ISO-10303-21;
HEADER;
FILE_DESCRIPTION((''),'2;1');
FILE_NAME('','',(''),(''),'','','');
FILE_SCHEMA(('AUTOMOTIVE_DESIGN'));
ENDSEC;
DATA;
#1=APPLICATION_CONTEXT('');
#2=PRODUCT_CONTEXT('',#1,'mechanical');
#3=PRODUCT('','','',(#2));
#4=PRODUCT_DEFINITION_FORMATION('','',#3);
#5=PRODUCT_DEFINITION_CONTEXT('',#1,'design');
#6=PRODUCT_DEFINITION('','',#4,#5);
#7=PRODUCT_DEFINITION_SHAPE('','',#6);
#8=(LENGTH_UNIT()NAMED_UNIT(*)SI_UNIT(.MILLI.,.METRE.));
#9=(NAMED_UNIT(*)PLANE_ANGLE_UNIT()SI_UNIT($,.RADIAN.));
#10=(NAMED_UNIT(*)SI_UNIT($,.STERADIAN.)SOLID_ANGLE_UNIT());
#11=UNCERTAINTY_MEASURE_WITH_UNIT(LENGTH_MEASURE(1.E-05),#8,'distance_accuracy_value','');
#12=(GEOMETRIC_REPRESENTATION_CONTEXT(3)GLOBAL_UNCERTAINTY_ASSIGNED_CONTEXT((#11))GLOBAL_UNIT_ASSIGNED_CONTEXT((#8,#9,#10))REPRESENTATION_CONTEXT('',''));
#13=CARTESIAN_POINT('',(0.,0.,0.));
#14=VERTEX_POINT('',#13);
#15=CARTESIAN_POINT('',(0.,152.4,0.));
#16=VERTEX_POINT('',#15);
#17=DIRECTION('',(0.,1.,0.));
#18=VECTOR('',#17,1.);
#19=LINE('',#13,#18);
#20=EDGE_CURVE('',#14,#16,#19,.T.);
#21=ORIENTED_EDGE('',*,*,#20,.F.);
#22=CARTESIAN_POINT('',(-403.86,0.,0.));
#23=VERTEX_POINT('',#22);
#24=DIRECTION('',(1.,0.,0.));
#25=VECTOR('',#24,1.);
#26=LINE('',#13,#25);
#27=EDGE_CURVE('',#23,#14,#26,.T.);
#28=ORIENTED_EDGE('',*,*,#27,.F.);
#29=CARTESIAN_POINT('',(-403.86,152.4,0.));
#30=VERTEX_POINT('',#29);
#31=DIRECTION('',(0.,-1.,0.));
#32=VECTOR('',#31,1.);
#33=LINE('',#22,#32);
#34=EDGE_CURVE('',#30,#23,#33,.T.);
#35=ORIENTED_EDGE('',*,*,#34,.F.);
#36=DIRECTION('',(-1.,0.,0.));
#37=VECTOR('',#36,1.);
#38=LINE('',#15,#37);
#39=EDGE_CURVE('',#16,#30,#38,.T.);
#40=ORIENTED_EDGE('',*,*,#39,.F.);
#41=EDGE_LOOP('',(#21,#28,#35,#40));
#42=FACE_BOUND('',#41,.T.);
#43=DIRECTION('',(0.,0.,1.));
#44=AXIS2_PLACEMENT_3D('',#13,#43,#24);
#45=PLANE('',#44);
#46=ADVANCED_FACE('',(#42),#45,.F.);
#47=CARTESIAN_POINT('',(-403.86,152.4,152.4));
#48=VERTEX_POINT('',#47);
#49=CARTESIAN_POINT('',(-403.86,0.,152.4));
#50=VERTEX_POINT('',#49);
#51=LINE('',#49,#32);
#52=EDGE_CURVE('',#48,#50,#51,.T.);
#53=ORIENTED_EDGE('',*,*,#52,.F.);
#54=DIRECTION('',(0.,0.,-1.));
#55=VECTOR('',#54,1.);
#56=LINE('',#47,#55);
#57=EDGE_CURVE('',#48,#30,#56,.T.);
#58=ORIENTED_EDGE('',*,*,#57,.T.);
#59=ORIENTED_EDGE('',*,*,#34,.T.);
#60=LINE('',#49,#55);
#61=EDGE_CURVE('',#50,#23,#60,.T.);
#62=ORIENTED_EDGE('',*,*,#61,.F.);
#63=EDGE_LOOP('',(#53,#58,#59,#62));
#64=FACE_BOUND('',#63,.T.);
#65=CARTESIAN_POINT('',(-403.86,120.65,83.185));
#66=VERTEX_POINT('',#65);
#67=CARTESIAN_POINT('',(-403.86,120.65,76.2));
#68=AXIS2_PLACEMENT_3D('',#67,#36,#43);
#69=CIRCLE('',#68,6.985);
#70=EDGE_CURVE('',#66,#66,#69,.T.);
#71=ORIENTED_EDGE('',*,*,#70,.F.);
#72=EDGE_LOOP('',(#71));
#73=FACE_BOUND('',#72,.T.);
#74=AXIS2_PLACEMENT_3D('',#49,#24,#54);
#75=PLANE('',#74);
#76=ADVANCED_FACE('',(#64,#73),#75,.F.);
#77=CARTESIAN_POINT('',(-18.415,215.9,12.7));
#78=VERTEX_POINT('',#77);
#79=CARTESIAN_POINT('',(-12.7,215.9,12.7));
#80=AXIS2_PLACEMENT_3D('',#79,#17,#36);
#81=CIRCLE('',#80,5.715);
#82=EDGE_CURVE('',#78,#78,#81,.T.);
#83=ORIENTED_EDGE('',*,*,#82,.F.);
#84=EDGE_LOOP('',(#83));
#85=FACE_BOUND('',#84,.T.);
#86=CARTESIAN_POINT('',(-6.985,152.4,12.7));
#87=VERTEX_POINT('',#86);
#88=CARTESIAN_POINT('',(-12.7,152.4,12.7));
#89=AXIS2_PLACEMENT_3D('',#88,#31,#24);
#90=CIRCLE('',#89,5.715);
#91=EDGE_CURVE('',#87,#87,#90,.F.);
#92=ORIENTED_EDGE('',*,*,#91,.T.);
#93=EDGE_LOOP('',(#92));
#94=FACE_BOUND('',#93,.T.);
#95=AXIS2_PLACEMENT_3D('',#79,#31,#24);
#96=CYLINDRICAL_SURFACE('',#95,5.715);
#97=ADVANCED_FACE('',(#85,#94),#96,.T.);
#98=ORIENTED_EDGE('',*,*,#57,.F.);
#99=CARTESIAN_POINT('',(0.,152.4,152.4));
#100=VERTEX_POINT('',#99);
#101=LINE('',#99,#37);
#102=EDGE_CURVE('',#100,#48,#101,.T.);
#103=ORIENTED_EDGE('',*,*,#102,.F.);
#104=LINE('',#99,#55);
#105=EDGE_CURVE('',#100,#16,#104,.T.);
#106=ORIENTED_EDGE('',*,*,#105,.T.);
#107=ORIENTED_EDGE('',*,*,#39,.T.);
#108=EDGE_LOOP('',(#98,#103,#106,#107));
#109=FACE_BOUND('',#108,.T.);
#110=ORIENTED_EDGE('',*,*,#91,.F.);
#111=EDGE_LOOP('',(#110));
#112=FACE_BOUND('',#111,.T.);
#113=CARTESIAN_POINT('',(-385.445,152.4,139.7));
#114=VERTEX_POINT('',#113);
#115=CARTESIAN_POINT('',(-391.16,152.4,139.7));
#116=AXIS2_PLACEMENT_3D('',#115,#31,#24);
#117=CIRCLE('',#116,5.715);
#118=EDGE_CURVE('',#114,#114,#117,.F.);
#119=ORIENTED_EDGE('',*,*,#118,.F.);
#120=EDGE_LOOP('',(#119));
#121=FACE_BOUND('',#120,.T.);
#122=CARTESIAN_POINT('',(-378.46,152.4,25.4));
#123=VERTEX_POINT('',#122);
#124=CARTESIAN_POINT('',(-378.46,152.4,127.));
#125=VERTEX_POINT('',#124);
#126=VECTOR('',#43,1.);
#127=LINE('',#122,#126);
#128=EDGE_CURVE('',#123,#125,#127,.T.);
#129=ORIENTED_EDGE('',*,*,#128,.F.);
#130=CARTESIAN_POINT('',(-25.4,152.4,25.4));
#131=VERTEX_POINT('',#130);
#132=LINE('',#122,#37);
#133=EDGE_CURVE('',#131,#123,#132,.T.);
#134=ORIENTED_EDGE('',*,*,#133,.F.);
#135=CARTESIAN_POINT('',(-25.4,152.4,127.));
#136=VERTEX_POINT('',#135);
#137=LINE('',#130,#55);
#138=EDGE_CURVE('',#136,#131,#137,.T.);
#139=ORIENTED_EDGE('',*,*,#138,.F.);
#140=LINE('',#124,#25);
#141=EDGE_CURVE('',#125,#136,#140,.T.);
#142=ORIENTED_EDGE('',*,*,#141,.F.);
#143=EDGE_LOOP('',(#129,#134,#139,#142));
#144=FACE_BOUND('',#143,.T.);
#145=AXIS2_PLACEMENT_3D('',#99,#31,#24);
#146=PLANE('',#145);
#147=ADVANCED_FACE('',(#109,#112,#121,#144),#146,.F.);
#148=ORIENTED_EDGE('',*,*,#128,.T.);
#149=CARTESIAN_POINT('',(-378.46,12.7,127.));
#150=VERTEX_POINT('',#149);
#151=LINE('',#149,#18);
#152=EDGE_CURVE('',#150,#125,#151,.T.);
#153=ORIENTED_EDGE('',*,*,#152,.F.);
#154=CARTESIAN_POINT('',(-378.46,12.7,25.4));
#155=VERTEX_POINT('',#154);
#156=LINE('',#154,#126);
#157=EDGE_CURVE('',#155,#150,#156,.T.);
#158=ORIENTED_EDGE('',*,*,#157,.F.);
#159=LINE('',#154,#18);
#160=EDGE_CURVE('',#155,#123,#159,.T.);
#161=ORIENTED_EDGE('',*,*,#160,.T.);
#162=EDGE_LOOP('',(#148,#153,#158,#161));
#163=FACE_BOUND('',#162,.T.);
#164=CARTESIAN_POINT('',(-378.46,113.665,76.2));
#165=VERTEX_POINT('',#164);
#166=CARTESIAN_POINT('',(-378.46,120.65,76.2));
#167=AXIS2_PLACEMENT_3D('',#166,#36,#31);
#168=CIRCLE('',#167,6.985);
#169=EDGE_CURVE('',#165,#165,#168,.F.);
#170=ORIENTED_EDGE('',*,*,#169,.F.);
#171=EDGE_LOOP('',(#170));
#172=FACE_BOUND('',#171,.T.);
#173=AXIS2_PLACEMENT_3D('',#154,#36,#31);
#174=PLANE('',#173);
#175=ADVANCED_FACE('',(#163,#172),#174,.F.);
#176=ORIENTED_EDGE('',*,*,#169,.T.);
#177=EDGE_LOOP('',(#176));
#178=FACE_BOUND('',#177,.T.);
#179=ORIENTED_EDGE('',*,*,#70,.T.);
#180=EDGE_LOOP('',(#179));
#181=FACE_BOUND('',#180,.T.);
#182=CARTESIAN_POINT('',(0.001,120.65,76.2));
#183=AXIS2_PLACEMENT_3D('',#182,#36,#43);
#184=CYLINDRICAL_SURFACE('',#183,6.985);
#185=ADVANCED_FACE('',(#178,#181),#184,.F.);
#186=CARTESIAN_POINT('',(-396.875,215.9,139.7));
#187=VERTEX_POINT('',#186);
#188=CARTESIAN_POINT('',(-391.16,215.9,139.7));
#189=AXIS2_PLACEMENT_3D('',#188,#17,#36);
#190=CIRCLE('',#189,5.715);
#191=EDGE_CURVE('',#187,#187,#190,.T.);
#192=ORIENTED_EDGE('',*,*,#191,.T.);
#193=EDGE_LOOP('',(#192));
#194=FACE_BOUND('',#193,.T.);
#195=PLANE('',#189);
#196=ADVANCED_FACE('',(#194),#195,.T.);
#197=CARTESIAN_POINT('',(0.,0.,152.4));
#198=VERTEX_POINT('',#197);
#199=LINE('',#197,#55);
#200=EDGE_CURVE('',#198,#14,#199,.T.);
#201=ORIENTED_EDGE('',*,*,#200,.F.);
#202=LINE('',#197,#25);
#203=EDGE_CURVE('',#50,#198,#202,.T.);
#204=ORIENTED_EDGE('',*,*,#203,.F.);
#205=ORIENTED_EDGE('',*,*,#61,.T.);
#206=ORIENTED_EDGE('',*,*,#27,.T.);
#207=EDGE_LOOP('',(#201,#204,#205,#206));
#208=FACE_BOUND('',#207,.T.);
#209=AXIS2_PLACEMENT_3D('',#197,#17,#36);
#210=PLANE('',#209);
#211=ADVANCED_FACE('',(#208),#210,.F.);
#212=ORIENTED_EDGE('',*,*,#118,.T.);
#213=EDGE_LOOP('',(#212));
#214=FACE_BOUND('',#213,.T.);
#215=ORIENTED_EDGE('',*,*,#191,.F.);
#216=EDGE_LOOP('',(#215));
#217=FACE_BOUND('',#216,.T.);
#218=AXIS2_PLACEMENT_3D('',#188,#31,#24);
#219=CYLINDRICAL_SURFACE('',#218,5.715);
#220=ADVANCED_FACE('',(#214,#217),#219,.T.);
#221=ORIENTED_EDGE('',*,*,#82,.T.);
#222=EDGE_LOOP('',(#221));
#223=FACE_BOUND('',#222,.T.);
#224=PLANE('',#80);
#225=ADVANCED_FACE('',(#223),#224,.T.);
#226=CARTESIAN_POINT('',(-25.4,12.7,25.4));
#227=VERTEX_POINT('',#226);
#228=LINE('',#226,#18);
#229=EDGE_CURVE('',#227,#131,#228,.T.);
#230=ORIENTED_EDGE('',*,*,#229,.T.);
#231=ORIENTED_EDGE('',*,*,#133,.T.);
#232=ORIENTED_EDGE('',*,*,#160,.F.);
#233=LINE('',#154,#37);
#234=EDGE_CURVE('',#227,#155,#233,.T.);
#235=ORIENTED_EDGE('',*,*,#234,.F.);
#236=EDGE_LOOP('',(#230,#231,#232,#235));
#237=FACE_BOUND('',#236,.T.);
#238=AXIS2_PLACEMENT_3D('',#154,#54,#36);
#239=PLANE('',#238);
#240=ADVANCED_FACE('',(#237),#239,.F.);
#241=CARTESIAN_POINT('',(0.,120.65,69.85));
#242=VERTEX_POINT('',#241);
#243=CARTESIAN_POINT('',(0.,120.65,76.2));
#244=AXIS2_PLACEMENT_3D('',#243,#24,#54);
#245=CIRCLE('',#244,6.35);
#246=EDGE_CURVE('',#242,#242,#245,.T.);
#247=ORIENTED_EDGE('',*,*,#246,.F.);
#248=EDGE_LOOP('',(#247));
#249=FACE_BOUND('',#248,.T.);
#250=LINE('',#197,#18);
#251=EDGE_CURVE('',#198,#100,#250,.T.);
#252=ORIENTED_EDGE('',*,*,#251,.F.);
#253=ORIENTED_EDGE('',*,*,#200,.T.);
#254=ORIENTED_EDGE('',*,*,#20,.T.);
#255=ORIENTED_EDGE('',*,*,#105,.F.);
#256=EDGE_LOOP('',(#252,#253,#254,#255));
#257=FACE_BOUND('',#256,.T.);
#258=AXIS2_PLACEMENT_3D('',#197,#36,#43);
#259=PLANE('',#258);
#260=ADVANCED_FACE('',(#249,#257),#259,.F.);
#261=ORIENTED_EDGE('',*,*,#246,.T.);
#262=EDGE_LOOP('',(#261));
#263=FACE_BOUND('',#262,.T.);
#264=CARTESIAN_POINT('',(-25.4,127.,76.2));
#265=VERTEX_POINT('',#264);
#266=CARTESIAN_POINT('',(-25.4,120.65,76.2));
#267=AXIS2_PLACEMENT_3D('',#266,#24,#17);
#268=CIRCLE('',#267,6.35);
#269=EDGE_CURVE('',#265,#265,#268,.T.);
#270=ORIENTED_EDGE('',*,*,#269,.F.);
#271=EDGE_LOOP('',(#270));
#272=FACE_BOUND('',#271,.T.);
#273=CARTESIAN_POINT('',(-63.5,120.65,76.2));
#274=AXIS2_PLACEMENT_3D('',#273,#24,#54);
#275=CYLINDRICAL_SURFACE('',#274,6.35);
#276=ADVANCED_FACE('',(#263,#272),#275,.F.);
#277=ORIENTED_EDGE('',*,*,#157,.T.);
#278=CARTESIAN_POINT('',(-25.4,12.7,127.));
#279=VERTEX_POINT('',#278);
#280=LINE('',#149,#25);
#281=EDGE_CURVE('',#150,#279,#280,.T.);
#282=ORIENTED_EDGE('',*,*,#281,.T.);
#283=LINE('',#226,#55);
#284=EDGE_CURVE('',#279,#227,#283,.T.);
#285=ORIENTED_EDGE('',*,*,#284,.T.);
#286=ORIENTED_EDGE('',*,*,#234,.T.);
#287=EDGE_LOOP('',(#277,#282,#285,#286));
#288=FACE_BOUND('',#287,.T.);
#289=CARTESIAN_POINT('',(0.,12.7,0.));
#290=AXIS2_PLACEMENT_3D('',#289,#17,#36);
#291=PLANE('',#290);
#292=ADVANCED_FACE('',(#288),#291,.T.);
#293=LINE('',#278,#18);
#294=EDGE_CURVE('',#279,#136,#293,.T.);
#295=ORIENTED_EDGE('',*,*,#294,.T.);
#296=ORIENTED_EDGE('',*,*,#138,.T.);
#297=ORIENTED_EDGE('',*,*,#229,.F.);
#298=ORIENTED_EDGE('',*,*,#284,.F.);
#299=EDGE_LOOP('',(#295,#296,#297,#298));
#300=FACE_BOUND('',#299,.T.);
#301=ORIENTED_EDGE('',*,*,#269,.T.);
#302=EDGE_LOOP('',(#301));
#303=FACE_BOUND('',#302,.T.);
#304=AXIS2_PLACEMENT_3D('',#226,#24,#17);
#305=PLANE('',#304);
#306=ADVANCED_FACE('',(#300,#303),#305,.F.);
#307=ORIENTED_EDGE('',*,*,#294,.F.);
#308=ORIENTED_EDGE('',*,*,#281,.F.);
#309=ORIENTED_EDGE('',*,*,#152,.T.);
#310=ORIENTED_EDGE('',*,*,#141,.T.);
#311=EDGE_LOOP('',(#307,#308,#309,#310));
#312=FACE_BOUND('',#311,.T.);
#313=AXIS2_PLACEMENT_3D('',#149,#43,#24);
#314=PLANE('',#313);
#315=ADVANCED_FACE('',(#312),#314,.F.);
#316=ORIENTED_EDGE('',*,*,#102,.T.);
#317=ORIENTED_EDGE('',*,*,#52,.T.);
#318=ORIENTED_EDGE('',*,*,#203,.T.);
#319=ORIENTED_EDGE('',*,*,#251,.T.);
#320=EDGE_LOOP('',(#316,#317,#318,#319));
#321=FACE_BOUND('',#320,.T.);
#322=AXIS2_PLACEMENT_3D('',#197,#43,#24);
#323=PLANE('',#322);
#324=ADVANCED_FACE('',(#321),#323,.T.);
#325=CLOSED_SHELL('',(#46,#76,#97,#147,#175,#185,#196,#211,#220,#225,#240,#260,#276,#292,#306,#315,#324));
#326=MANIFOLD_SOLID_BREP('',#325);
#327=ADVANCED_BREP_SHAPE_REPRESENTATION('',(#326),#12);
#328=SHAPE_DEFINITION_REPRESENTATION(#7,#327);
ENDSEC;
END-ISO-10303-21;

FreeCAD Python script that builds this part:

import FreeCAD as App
import Part
import Sketcher
from FreeCAD import Vector
Q = App.Units.Quantity

doc = App.newDocument("Part")
body = doc.addObject("PartDesign::Body", "Body")

sketch1 = body.newObject("Sketcher::SketchObject", "Sketch")
sketch1.AttachmentSupport = (doc.getObject("XY_Plane"), [""])
sketch1.MapMode = "FlatFace"
sketch1.addGeometry([
    Part.LineSegment(Vector(-404, 152, 0), Vector(-404, 0, 0)),
    Part.LineSegment(Vector(-404, 0, 0), Vector(0, 0, 0)),
    Part.LineSegment(Vector(0, 0, 0), Vector(0, 152, 0)),
    Part.LineSegment(Vector(0, 152, 0), Vector(-404, 152, 0)),
], False)
sketch1.addConstraint([
    Sketcher.Constraint("Coincident", 0, 2, 1, 1),
    Sketcher.Constraint("Coincident", 1, 2, 2, 1),
    Sketcher.Constraint("Coincident", 2, 2, 3, 1),
    Sketcher.Constraint("Coincident", 3, 2, 0, 1),
    Sketcher.Constraint("Vertical", 0),
    Sketcher.Constraint("Horizontal", 1),
    Sketcher.Constraint("Vertical", 2),
    Sketcher.Constraint("Horizontal", 3),
    Sketcher.Constraint("Coincident", 1, 2, -1, 1),
    Sketcher.Constraint("DistanceY", 0, 2, 0, 1, Q("6 in")),
    Sketcher.Constraint("DistanceX", 1, 1, 1, 2, Q("15.9 in")),
])
pad1 = body.newObject("PartDesign::Pad", "Pad")
pad1.Profile = sketch1
pad1.Length = Q("6 in")

sketch2 = body.newObject("Sketcher::SketchObject", "Sketch001")
sketch2.AttachmentSupport = (doc.getObject("XZ_Plane"), [""])
sketch2.MapMode = "FlatFace"
sketch2.AttachmentOffset = App.Placement(Vector(0, 0, -6 * 25.4), App.Rotation())
sketch2.addGeometry([
    Part.LineSegment(Vector(-378, 25, 0), Vector(-378, 127, 0)),
    Part.LineSegment(Vector(-378, 127, 0), Vector(-25, 127, 0)),
    Part.LineSegment(Vector(-25, 127, 0), Vector(-25, 25, 0)),
    Part.LineSegment(Vector(-25, 25, 0), Vector(-378, 25, 0)),
], False)
sketch2.addConstraint([
    Sketcher.Constraint("Coincident", 0, 2, 1, 1),
    Sketcher.Constraint("Coincident", 1, 2, 2, 1),
    Sketcher.Constraint("Coincident", 2, 2, 3, 1),
    Sketcher.Constraint("Coincident", 3, 2, 0, 1),
    Sketcher.Constraint("Vertical", 0),
    Sketcher.Constraint("Horizontal", 1),
    Sketcher.Constraint("Vertical", 2),
    Sketcher.Constraint("Horizontal", 3),
    Sketcher.Constraint("DistanceY", 0, 1, 0, 2, Q("4 in")),
    Sketcher.Constraint("DistanceX", 1, 1, 1, 2, Q("13.9 in")),
    Sketcher.Constraint("DistanceY", -1, 1, 0, 2, Q("5 in")),
    Sketcher.Constraint("DistanceX", 1, 2, -1, 1, Q("1 in")),
])
pocket1 = body.newObject("PartDesign::Pocket", "Pocket")
pocket1.Profile = sketch2
pocket1.Length = Q("5.5 in")
pocket1.Reversed = True

sketch3 = body.newObject("Sketcher::SketchObject", "Sketch002")
sketch3.AttachmentSupport = (doc.getObject("XZ_Plane"), [""])
sketch3.MapMode = "FlatFace"
sketch3.AttachmentOffset = App.Placement(Vector(0, 0, -6 * 25.4), App.Rotation())
sketch3.addGeometry(Part.Circle(Vector(-391, 140, 0), Vector(0, 0, 1), 6), False)
sketch3.addConstraint([
    Sketcher.Constraint("Diameter", 0, Q("0.45 in")),
    Sketcher.Constraint("DistanceX", 0, 3, -1, 1, Q("15.4 in")),
    Sketcher.Constraint("DistanceY", -1, 1, 0, 3, Q("5.5 in")),
])
pad2 = body.newObject("PartDesign::Pad", "Pad001")
pad2.Profile = sketch3
pad2.Length = Q("2.5 in")
pad2.Reversed = True

sketch4 = body.newObject("Sketcher::SketchObject", "Sketch003")
sketch4.AttachmentSupport = (doc.getObject("YZ_Plane"), [""])
sketch4.MapMode = "FlatFace"
sketch4.addGeometry(Part.Circle(Vector(121, 76, 0), Vector(0, 0, 1), 6), False)
sketch4.addConstraint([
    Sketcher.Constraint("Diameter", 0, Q("0.5 in")),
    Sketcher.Constraint("DistanceY", -1, 1, 0, 3, Q("3 in")),
    Sketcher.Constraint("DistanceX", -1, 1, 0, 3, Q("4.75 in")),
])
pocket2 = body.newObject("PartDesign::Pocket", "Pocket001")
pocket2.Profile = sketch4
pocket2.Length = Q("2.5 in")

sketch5 = body.newObject("Sketcher::SketchObject", "Sketch004")
sketch5.AttachmentSupport = (doc.getObject("YZ_Plane"), [""])
sketch5.MapMode = "FlatFace"
sketch5.AttachmentOffset = App.Placement(Vector(0, 0, -15.9 * 25.4), App.Rotation())
sketch5.addGeometry(Part.Circle(Vector(121, 76, 0), Vector(0, 0, 1), 7), False)
sketch5.addConstraint([
    Sketcher.Constraint("Diameter", 0, Q("0.55 in")),
    Sketcher.Constraint("DistanceY", -1, 1, 0, 3, Q("3 in")),
    Sketcher.Constraint("DistanceX", -1, 1, 0, 3, Q("4.75 in")),
])
pocket3 = body.newObject("PartDesign::Pocket", "Pocket002")
pocket3.Profile = sketch5
pocket3.Type = "UpToFirst"
pocket3.Reversed = True

sketch6 = body.newObject("Sketcher::SketchObject", "Sketch005")
sketch6.AttachmentSupport = (doc.getObject("XZ_Plane"), [""])
sketch6.MapMode = "FlatFace"
sketch6.AttachmentOffset = App.Placement(Vector(0, 0, -6 * 25.4), App.Rotation())
sketch6.addGeometry(Part.Circle(Vector(-13, 13, 0), Vector(0, 0, 1), 6), False)
sketch6.addConstraint([
    Sketcher.Constraint("Diameter", 0, Q("0.45 in")),
    Sketcher.Constraint("DistanceX", 0, 3, -1, 1, Q("0.5 in")),
    Sketcher.Constraint("DistanceY", -1, 1, 0, 3, Q("0.5 in")),
])
pad3 = body.newObject("PartDesign::Pad", "Pad002")
pad3.Profile = sketch6
pad3.Length = Q("2.5 in")
pad3.Reversed = True

doc.recompute()
